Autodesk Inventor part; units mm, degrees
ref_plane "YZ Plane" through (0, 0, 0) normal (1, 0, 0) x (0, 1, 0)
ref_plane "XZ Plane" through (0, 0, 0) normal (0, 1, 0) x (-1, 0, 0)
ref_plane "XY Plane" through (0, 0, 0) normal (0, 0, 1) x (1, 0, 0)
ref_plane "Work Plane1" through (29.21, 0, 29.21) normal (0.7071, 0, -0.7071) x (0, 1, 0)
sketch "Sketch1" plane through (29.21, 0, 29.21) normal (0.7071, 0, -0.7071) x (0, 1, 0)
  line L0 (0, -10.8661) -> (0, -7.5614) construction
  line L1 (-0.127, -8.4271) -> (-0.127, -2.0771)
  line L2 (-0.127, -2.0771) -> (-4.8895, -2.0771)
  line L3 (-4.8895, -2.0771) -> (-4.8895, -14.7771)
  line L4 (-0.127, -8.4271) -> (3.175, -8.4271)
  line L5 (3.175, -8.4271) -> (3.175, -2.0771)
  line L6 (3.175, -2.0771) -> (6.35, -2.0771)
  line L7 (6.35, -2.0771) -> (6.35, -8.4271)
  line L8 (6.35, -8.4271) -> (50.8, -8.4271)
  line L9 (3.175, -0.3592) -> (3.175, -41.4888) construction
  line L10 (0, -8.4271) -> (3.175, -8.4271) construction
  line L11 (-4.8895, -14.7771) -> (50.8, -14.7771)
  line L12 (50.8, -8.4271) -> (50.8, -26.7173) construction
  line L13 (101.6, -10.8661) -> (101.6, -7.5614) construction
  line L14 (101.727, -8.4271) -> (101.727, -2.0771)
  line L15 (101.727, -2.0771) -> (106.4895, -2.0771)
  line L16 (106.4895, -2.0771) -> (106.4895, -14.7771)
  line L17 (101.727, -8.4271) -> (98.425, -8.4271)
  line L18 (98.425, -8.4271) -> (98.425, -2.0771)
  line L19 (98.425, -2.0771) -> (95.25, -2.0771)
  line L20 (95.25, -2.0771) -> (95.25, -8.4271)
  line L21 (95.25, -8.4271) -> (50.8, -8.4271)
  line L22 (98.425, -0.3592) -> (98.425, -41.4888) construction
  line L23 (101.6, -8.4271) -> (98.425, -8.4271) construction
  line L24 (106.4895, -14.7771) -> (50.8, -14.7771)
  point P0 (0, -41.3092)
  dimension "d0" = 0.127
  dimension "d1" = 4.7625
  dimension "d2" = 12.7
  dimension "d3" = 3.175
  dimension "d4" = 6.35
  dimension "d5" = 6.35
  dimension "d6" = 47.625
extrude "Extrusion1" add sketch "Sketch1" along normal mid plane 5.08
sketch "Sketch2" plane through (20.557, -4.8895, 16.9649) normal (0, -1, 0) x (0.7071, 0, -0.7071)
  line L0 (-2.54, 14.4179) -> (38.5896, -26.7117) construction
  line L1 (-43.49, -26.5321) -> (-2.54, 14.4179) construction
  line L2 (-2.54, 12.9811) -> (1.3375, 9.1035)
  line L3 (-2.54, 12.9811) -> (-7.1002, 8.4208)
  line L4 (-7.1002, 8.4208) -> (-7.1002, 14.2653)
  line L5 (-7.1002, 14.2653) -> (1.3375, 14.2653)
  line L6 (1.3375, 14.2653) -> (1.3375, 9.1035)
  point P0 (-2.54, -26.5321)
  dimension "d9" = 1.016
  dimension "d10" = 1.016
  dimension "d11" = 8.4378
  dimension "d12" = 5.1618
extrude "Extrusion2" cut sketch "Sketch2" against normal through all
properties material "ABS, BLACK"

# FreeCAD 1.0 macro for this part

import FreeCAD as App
import Part
import Sketcher

V = App.Vector
Q = App.Units.Quantity

doc = App.newDocument("Part")
body = doc.addObject("PartDesign::Body", "Body")

sketch1 = doc.addObject("Sketcher::SketchObject", "Sketch")
body.addObject(sketch1)
sketch1.Placement = App.Placement(V(29.21, 0, 29.21), App.Rotation(V(0, 1, 0), V(0.707106781, 0, 0.707106781), V(0.707106781, 0, -0.707106781), "ZXY"))
sketch1.addGeometry(Part.LineSegment(V(3.2, -8.4, 0), V(-0.1, -8.4, 0)), False)
sketch1.addGeometry(Part.LineSegment(V(-0.1, -8.4, 0), V(-0.1, -2.1, 0)), False)
sketch1.addGeometry(Part.LineSegment(V(-0.1, -2.1, 0), V(-4.9, -2.1, 0)), False)
sketch1.addGeometry(Part.LineSegment(V(-4.9, -2.1, 0), V(-4.9, -14.8, 0)), False)
sketch1.addGeometry(Part.LineSegment(V(-4.9, -14.8, 0), V(106.5, -14.8, 0)), False)
sketch1.addGeometry(Part.LineSegment(V(106.5, -14.8, 0), V(106.5, -2.1, 0)), False)
sketch1.addGeometry(Part.LineSegment(V(106.5, -2.1, 0), V(101.7, -2.1, 0)), False)
sketch1.addGeometry(Part.LineSegment(V(101.7, -2.1, 0), V(101.7, -8.4, 0)), False)
sketch1.addGeometry(Part.LineSegment(V(101.7, -8.4, 0), V(98.4, -8.4, 0)), False)
sketch1.addGeometry(Part.LineSegment(V(98.4, -8.4, 0), V(98.4, -2.1, 0)), False)
sketch1.addGeometry(Part.LineSegment(V(98.4, -2.1, 0), V(95.2, -2.1, 0)), False)
sketch1.addGeometry(Part.LineSegment(V(95.2, -2.1, 0), V(95.2, -8.4, 0)), False)
sketch1.addGeometry(Part.LineSegment(V(95.2, -8.4, 0), V(6.3, -8.4, 0)), False)
sketch1.addGeometry(Part.LineSegment(V(6.3, -8.4, 0), V(6.3, -2.1, 0)), False)
sketch1.addGeometry(Part.LineSegment(V(6.3, -2.1, 0), V(3.2, -2.1, 0)), False)
sketch1.addGeometry(Part.LineSegment(V(3.2, -2.1, 0), V(3.2, -8.4, 0)), False)
sketch1.addConstraint(Sketcher.Constraint("Coincident", 0, 2, 1, 1))
sketch1.addConstraint(Sketcher.Constraint("Coincident", 1, 2, 2, 1))
sketch1.addConstraint(Sketcher.Constraint("Coincident", 2, 2, 3, 1))
sketch1.addConstraint(Sketcher.Constraint("Coincident", 3, 2, 4, 1))
sketch1.addConstraint(Sketcher.Constraint("Coincident", 4, 2, 5, 1))
sketch1.addConstraint(Sketcher.Constraint("Coincident", 5, 2, 6, 1))
sketch1.addConstraint(Sketcher.Constraint("Coincident", 6, 2, 7, 1))
sketch1.addConstraint(Sketcher.Constraint("Coincident", 7, 2, 8, 1))
sketch1.addConstraint(Sketcher.Constraint("Coincident", 8, 2, 9, 1))
sketch1.addConstraint(Sketcher.Constraint("Coincident", 9, 2, 10, 1))
sketch1.addConstraint(Sketcher.Constraint("Coincident", 10, 2, 11, 1))
sketch1.addConstraint(Sketcher.Constraint("Coincident", 11, 2, 12, 1))
sketch1.addConstraint(Sketcher.Constraint("Coincident", 12, 2, 13, 1))
sketch1.addConstraint(Sketcher.Constraint("Coincident", 13, 2, 14, 1))
sketch1.addConstraint(Sketcher.Constraint("Coincident", 14, 2, 15, 1))
sketch1.addConstraint(Sketcher.Constraint("Coincident", 15, 2, 0, 1))
sketch1.addConstraint(Sketcher.Constraint("Horizontal", 0))
sketch1.addConstraint(Sketcher.Constraint("Vertical", 1))
sketch1.addConstraint(Sketcher.Constraint("Horizontal", 2))
sketch1.addConstraint(Sketcher.Constraint("Vertical", 3))
sketch1.addConstraint(Sketcher.Constraint("Horizontal", 4))
sketch1.addConstraint(Sketcher.Constraint("Vertical", 5))
sketch1.addConstraint(Sketcher.Constraint("Horizontal", 6))
sketch1.addConstraint(Sketcher.Constraint("Vertical", 7))
sketch1.addConstraint(Sketcher.Constraint("Horizontal", 8))
sketch1.addConstraint(Sketcher.Constraint("Vertical", 9))
sketch1.addConstraint(Sketcher.Constraint("Horizontal", 10))
sketch1.addConstraint(Sketcher.Constraint("Vertical", 11))
sketch1.addConstraint(Sketcher.Constraint("Horizontal", 12))
sketch1.addConstraint(Sketcher.Constraint("Vertical", 13))
sketch1.addConstraint(Sketcher.Constraint("Horizontal", 14))
sketch1.addConstraint(Sketcher.Constraint("Vertical", 15))
sketch1.addConstraint(Sketcher.Constraint("Horizontal", 2, 2, 5, 2))
sketch1.addConstraint(Sketcher.Constraint("Horizontal", 0, 2, 7, 2))
sketch1.addConstraint(Sketcher.Constraint("Horizontal", 6, 2, 9, 2))
sketch1.addConstraint(Sketcher.Constraint("Horizontal", 8, 2, 11, 2))
sketch1.addConstraint(Sketcher.Constraint("Horizontal", 10, 2, 13, 2))
sketch1.addConstraint(Sketcher.Constraint("Equal", 2, 6))
sketch1.addConstraint(Sketcher.Constraint("Equal", 0, 8))
sketch1.addConstraint(Sketcher.Constraint("Equal", 10, 14))
sketch1.addConstraint(Sketcher.Constraint("DistanceY", 3, 2, 3, 1, Q("0.5 in")))
sketch1.addConstraint(Sketcher.Constraint("DistanceY", 1, 1, 1, 2, Q("0.25 in")))
sketch1.addConstraint(Sketcher.Constraint("DistanceX", 2, 2, 2, 1, Q("0.1875 in")))
sketch1.addConstraint(Sketcher.Constraint("DistanceX", 10, 2, 10, 1, Q("0.125 in")))
sketch1.addConstraint(Sketcher.Constraint("DistanceX", -1, 1, 12, 2, Q("0.25 in")))
sketch1.addConstraint(Sketcher.Constraint("DistanceX", 12, 2, 12, 1, Q("3.5 in")))
sketch1.addConstraint(Sketcher.Constraint("DistanceX", 0, 2, -1, 1, Q("0.005 in")))
sketch1.addConstraint(Sketcher.Constraint("DistanceY", 0, 2, -1, 1, Q("8.427 mm")))
pad1 = doc.addObject("PartDesign::Pad", "Pad")
body.addObject(pad1)
pad1.Profile = sketch1
pad1.Length = Q("0.2 in")
pad1.Midplane = True

sketch2 = doc.addObject("Sketcher::SketchObject", "Sketch001")
body.addObject(sketch2)
sketch2.AttachmentSupport = (doc.XZ_Plane, [""])
sketch2.MapMode = "FlatFace"
sketch2.AttachmentOffset = App.Placement(V(0, 0, 0.1925 * 25.4), App.Rotation())
sketch2.addGeometry(Part.LineSegment(V(21, 28, 0), V(28, 28, 0)), False)
sketch2.addGeometry(Part.LineSegment(V(28, 28, 0), V(28, 22, 0)), False)
sketch2.addGeometry(Part.LineSegment(V(28, 22, 0), V(32, 26, 0)), False)
sketch2.addGeometry(Part.LineSegment(V(32, 26, 0), V(26, 32, 0)), False)
sketch2.addGeometry(Part.LineSegment(V(26, 32, 0), V(21, 28, 0)), False)
sketch2.addConstraint(Sketcher.Constraint("Coincident", 0, 2, 1, 1))
sketch2.addConstraint(Sketcher.Constraint("Coincident", 1, 2, 2, 1))
sketch2.addConstraint(Sketcher.Constraint("Coincident", 2, 2, 3, 1))
sketch2.addConstraint(Sketcher.Constraint("Coincident", 3, 2, 4, 1))
sketch2.addConstraint(Sketcher.Constraint("Coincident", 4, 2, 0, 1))
sketch2.addConstraint(Sketcher.Constraint("Horizontal", 0))
sketch2.addConstraint(Sketcher.Constraint("Vertical", 1))
sketch2.addConstraint(Sketcher.Constraint("Perpendicular", 2, 3))
sketch2.addConstraint(Sketcher.Constraint("Perpendicular", 3, 4))
sketch2.addConstraint(Sketcher.Constraint("Angle", 2, Q("45 deg")))
sketch2.addConstraint(Sketcher.Constraint("Distance", 3, Q("0.3322 in")))
sketch2.addConstraint(Sketcher.Constraint("DistanceX", -1, 1, 0, 2, Q("1.1 in")))
sketch2.addConstraint(Sketcher.Constraint("DistanceY", -1, 1, 0, 2, Q("1.1 in")))
sketch2.addConstraint(Sketcher.Constraint("Distance", 2, Q("5.1618 mm")))
sketch2.addConstraint(Sketcher.Constraint("DistanceX", 0, 1, 0, 2, Q("0.2539 in")))
pocket1 = doc.addObject("PartDesign::Pocket", "Pocket")
body.addObject(pocket1)
pocket1.Profile = sketch2
pocket1.Type = "ThroughAll"

doc.recompute()
